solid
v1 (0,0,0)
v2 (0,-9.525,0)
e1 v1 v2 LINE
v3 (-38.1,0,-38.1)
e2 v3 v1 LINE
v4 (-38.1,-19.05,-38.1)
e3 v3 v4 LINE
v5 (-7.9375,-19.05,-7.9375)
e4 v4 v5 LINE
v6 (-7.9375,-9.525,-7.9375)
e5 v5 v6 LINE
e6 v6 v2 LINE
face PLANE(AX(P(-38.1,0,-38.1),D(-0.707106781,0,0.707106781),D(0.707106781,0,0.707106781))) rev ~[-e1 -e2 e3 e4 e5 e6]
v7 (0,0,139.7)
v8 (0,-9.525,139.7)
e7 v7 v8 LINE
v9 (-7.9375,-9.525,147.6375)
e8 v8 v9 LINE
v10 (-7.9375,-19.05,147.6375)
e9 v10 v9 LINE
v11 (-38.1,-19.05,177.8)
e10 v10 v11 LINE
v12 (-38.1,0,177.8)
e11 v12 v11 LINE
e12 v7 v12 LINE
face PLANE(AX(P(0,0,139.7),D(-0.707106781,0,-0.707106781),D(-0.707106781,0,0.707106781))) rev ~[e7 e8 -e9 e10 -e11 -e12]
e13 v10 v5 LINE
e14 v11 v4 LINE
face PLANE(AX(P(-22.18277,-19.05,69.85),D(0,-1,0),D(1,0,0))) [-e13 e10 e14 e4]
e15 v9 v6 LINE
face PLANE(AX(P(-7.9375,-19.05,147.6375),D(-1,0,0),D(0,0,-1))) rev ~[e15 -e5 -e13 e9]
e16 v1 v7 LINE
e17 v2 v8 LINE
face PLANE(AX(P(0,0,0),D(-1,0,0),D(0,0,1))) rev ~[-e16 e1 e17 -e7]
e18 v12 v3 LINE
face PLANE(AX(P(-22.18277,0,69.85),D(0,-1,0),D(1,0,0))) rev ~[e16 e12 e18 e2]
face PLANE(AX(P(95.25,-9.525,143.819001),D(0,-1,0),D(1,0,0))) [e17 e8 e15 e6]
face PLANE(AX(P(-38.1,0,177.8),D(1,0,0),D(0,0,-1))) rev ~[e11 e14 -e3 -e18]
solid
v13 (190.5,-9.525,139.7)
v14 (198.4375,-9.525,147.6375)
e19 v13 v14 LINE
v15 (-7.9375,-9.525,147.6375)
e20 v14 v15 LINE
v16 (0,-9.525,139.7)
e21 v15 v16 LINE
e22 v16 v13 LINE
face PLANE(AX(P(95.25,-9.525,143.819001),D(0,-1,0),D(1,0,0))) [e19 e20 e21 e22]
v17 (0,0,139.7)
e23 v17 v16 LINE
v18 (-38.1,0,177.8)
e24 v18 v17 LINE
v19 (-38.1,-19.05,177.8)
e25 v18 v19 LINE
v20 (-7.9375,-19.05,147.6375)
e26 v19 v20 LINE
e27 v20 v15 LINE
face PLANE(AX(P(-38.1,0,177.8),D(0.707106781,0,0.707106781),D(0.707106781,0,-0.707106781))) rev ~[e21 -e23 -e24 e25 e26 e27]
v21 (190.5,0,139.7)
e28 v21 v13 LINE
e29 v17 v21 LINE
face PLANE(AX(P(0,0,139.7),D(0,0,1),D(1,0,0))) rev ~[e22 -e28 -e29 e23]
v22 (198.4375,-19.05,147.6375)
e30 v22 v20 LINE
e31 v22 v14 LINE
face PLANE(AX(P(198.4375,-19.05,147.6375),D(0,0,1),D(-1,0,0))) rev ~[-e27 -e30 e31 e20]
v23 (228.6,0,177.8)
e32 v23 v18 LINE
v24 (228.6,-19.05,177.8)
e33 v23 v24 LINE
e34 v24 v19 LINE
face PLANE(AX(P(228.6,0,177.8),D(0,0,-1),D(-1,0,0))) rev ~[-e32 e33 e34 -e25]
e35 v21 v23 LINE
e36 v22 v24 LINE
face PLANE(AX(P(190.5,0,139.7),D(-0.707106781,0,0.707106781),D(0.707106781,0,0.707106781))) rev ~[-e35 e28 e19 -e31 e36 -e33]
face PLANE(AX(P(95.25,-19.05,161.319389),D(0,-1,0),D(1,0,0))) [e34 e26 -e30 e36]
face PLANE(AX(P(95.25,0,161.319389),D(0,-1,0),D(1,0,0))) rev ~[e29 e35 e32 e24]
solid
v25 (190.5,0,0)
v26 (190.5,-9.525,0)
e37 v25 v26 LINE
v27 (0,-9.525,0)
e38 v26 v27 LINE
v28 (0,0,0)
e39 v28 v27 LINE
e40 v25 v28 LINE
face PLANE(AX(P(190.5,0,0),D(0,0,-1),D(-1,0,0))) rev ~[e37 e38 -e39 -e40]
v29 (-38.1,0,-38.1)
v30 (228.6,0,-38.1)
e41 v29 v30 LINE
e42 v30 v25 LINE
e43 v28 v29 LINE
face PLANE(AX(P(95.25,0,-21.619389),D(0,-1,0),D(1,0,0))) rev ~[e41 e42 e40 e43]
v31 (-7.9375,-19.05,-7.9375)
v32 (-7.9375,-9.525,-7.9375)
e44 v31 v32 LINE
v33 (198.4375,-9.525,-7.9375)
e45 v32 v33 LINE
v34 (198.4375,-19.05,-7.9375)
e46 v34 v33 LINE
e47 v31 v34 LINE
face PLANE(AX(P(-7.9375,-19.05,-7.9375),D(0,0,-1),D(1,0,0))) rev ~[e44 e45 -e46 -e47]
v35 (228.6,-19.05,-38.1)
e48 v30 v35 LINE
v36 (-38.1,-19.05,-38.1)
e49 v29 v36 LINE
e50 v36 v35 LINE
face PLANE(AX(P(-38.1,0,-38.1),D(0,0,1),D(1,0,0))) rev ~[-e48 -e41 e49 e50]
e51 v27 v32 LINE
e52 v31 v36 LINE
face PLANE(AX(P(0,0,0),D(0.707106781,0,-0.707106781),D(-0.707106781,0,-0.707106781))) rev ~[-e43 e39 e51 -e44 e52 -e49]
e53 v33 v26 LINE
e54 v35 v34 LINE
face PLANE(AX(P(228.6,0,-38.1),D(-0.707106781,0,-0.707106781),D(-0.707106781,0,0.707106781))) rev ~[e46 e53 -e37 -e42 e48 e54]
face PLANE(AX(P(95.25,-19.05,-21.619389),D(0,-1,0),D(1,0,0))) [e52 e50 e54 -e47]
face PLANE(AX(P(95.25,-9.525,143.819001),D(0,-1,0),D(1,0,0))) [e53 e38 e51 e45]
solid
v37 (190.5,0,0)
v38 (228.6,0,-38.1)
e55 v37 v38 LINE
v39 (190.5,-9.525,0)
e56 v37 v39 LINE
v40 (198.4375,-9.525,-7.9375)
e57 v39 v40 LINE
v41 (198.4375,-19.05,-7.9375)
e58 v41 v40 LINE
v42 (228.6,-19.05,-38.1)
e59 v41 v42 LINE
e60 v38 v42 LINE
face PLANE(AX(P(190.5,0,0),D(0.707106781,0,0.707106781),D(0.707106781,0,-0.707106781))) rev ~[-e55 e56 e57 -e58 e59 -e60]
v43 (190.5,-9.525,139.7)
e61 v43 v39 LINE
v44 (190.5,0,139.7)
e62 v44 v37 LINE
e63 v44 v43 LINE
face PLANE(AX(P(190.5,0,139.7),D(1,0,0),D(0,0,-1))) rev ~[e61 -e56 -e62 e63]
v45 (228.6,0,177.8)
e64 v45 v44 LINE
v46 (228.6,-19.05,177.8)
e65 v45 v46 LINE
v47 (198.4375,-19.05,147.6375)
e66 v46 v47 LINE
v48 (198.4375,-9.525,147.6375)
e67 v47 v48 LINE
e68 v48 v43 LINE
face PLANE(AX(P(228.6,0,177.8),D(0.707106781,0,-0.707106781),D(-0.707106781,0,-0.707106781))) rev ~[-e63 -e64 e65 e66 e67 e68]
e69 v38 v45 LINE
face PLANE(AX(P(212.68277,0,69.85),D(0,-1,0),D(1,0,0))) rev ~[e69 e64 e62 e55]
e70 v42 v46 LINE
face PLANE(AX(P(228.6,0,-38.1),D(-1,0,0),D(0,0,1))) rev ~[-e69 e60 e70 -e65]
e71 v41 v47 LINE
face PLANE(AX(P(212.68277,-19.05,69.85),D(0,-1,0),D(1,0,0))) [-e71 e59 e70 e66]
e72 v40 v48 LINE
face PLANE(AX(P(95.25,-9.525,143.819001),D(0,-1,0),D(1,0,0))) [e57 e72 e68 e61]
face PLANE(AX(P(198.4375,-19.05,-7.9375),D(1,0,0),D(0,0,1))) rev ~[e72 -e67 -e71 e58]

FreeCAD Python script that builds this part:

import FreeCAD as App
import Part
import Sketcher

V = App.Vector
Q = App.Units.Quantity


def add_polygon(sketch, points):
    """Adds a closed chain of lines whose ends are joined by coincident constraints."""
    first, n = sketch.GeometryCount, len(points)
    for a, b in zip(points, points[1:] + points[:1]):
        sketch.addGeometry(Part.LineSegment(App.Vector(*a, 0), App.Vector(*b, 0)), False)
    for i in range(n):
        sketch.addConstraint(Sketcher.Constraint("Coincident", first + i, 2, first + (i + 1) % n, 1))

doc = App.newDocument("Part")
body = doc.addObject("PartDesign::Body", "Body")

# Sketch on XZ plane
sketch1 = body.newObject("Sketcher::SketchObject", "Sketch")
sketch1.AttachmentSupport = (doc.getObject("XZ_Plane"), [""])
sketch1.MapMode = "FlatFace"
add_polygon(sketch1, [(-38, -38), (0, 0), (0, 140), (-38, 178)])  # lines 0-3
sketch1.addConstraint(Sketcher.Constraint("Vertical", 1))
sketch1.addConstraint(Sketcher.Constraint("Vertical", 3))
sketch1.addConstraint(Sketcher.Constraint("Coincident", 0, 2, -1, 1))
sketch1.addConstraint(Sketcher.Constraint("Perpendicular", 0, 2))
sketch1.addConstraint(Sketcher.Constraint("Equal", 0, 2))
sketch1.addConstraint(Sketcher.Constraint("DistanceY", 1, 1, 1, 2, Q("5.5 in")))
sketch1.addConstraint(Sketcher.Constraint("DistanceY", 3, 2, 3, 1, Q("8.5 in")))
pad1 = body.newObject("PartDesign::Pad", "Pad")
pad1.Profile = sketch1
pad1.Length = Q("0.75 in")
body2 = doc.addObject("PartDesign::Body", "Body001")

# Sketch on XZ plane
sketch2 = body2.newObject("Sketcher::SketchObject", "Sketch001")
sketch2.AttachmentSupport = (doc.getObject("XZ_Plane001"), [""])
sketch2.MapMode = "FlatFace"
add_polygon(sketch2, [(-38, 178), (0, 140), (190, 140), (229, 178)])  # lines 0-3
sketch2.addConstraint(Sketcher.Constraint("Horizontal", 1))
sketch2.addConstraint(Sketcher.Constraint("Horizontal", 3))
sketch2.addConstraint(Sketcher.Constraint("PointOnObject", 0, 2, -2))
sketch2.addConstraint(Sketcher.Constraint("Perpendicular", 0, 2))
sketch2.addConstraint(Sketcher.Constraint("Equal", 0, 2))
sketch2.addConstraint(Sketcher.Constraint("DistanceX", 1, 1, 1, 2, Q("7.5 in")))
sketch2.addConstraint(Sketcher.Constraint("DistanceX", 3, 2, 3, 1, Q("10.5 in")))
sketch2.addConstraint(Sketcher.Constraint("DistanceY", -1, 1, 2, 2, Q("7 in")))
pad2 = body2.newObject("PartDesign::Pad", "Pad001")
pad2.Profile = sketch2
pad2.Length = Q("0.75 in")
body3 = doc.addObject("PartDesign::Body", "Body002")

# Sketch on XZ plane
sketch3 = body3.newObject("Sketcher::SketchObject", "Sketch002")
sketch3.AttachmentSupport = (doc.getObject("XZ_Plane002"), [""])
sketch3.MapMode = "FlatFace"
add_polygon(sketch3, [(190, 140), (190, 0), (229, -38), (229, 178)])  # lines 0-3
sketch3.addConstraint(Sketcher.Constraint("Vertical", 0))
sketch3.addConstraint(Sketcher.Constraint("Vertical", 2))
sketch3.addConstraint(Sketcher.Constraint("PointOnObject", 0, 2, -1))
sketch3.addConstraint(Sketcher.Constraint("Perpendicular", 1, 3))
sketch3.addConstraint(Sketcher.Constraint("Equal", 1, 3))
sketch3.addConstraint(Sketcher.Constraint("DistanceY", 0, 2, 0, 1, Q("5.5 in")))
sketch3.addConstraint(Sketcher.Constraint("DistanceY", 2, 1, 2, 2, Q("8.5 in")))
sketch3.addConstraint(Sketcher.Constraint("DistanceX", -1, 1, 1, 2, Q("9 in")))
pad3 = body3.newObject("PartDesign::Pad", "Pad002")
pad3.Profile = sketch3
pad3.Length = Q("0.75 in")
body4 = doc.addObject("PartDesign::Body", "Body003")

# Sketch on XZ plane
sketch4 = body4.newObject("Sketcher::SketchObject", "Sketch003")
sketch4.AttachmentSupport = (doc.getObject("XZ_Plane003"), [""])
sketch4.MapMode = "FlatFace"
add_polygon(sketch4, [(190, 0), (0, 0), (-38, -38), (229, -38)])  # lines 0-3
sketch4.addConstraint(Sketcher.Constraint("Horizontal", 0))
sketch4.addConstraint(Sketcher.Constraint("Horizontal", 2))
sketch4.addConstraint(Sketcher.Constraint("Coincident", 0, 2, -1, 1))
sketch4.addConstraint(Sketcher.Constraint("Perpendicular", 1, 3))
sketch4.addConstraint(Sketcher.Constraint("Equal", 1, 3))
sketch4.addConstraint(Sketcher.Constraint("DistanceX", 0, 2, 0, 1, Q("7.5 in")))
sketch4.addConstraint(Sketcher.Constraint("DistanceX", 2, 1, 2, 2, Q("10.5 in")))
pad4 = body4.newObject("PartDesign::Pad", "Pad003")
pad4.Profile = sketch4
pad4.Length = Q("0.75 in")
body5 = doc.addObject("PartDesign::Body", "Body004")

# Sketch on XZ plane
sketch5 = body5.newObject("Sketcher::SketchObject", "Sketch004")
sketch5.AttachmentSupport = (doc.getObject("XZ_Plane004"), [""])
sketch5.MapMode = "FlatFace"
sketch5.AttachmentOffset = App.Placement(V(0, 0, 0.75 * 25.4), App.Rotation())
add_polygon(sketch5, [(198, 148), (-8, 148), (-8, -8), (198, -8)])  # lines 0-3
add_polygon(sketch5, [(0, 140), (190, 140), (190, 0), (0, 0)])  # lines 4-7
sketch5.addConstraint(Sketcher.Constraint("Horizontal", 0))
sketch5.addConstraint(Sketcher.Constraint("Vertical", 1))
sketch5.addConstraint(Sketcher.Constraint("Horizontal", 2))
sketch5.addConstraint(Sketcher.Constraint("Vertical", 3))
sketch5.addConstraint(Sketcher.Constraint("Horizontal", 4))
sketch5.addConstraint(Sketcher.Constraint("Vertical", 5))
sketch5.addConstraint(Sketcher.Constraint("Horizontal", 6))
sketch5.addConstraint(Sketcher.Constraint("Vertical", 7))
sketch5.addConstraint(Sketcher.Constraint("Coincident", 6, 2, -1, 1))
sketch5.addConstraint(Sketcher.Constraint("DistanceX", 4, 1, 4, 2, Q("7.5 in")))
sketch5.addConstraint(Sketcher.Constraint("DistanceY", 5, 2, 5, 1, Q("5.5 in")))
sketch5.addConstraint(Sketcher.Constraint("DistanceX", 0, 2, 0, 1, Q("8.125 in")))
sketch5.addConstraint(Sketcher.Constraint("DistanceY", 1, 2, 1, 1, Q("6.125 in")))
sketch5.addConstraint(Sketcher.Constraint("DistanceX", 0, 2, -1, 1, Q("0.3125 in")))
sketch5.addConstraint(Sketcher.Constraint("DistanceY", -1, 1, 0, 2, Q("5.8125 in")))
pad5 = body5.newObject("PartDesign::Pad", "Pad004")
pad5.Profile = sketch5
pad5.Length = Q("0.375 in")
pad5.Reversed = True
doc.recompute()

body6 = doc.addObject("PartDesign::Body", "Body005")
body6.BaseFeature = body5
boolean = body.newObject("PartDesign::Boolean", "Boolean")
boolean.Type = "Cut"
boolean.addObjects([body6])
doc.recompute()

body7 = doc.addObject("PartDesign::Body", "Body006")
body7.BaseFeature = body5
boolean2 = body2.newObject("PartDesign::Boolean", "Boolean001")
boolean2.Type = "Cut"
boolean2.addObjects([body7])
doc.recompute()

body8 = doc.addObject("PartDesign::Body", "Body007")
body8.BaseFeature = body5
boolean3 = body3.newObject("PartDesign::Boolean", "Boolean002")
boolean3.Type = "Cut"
boolean3.addObjects([body8])
doc.recompute()

boolean4 = body4.newObject("PartDesign::Boolean", "Boolean003")
boolean4.Type = "Cut"
boolean4.addObjects([body5])

doc.recompute()
